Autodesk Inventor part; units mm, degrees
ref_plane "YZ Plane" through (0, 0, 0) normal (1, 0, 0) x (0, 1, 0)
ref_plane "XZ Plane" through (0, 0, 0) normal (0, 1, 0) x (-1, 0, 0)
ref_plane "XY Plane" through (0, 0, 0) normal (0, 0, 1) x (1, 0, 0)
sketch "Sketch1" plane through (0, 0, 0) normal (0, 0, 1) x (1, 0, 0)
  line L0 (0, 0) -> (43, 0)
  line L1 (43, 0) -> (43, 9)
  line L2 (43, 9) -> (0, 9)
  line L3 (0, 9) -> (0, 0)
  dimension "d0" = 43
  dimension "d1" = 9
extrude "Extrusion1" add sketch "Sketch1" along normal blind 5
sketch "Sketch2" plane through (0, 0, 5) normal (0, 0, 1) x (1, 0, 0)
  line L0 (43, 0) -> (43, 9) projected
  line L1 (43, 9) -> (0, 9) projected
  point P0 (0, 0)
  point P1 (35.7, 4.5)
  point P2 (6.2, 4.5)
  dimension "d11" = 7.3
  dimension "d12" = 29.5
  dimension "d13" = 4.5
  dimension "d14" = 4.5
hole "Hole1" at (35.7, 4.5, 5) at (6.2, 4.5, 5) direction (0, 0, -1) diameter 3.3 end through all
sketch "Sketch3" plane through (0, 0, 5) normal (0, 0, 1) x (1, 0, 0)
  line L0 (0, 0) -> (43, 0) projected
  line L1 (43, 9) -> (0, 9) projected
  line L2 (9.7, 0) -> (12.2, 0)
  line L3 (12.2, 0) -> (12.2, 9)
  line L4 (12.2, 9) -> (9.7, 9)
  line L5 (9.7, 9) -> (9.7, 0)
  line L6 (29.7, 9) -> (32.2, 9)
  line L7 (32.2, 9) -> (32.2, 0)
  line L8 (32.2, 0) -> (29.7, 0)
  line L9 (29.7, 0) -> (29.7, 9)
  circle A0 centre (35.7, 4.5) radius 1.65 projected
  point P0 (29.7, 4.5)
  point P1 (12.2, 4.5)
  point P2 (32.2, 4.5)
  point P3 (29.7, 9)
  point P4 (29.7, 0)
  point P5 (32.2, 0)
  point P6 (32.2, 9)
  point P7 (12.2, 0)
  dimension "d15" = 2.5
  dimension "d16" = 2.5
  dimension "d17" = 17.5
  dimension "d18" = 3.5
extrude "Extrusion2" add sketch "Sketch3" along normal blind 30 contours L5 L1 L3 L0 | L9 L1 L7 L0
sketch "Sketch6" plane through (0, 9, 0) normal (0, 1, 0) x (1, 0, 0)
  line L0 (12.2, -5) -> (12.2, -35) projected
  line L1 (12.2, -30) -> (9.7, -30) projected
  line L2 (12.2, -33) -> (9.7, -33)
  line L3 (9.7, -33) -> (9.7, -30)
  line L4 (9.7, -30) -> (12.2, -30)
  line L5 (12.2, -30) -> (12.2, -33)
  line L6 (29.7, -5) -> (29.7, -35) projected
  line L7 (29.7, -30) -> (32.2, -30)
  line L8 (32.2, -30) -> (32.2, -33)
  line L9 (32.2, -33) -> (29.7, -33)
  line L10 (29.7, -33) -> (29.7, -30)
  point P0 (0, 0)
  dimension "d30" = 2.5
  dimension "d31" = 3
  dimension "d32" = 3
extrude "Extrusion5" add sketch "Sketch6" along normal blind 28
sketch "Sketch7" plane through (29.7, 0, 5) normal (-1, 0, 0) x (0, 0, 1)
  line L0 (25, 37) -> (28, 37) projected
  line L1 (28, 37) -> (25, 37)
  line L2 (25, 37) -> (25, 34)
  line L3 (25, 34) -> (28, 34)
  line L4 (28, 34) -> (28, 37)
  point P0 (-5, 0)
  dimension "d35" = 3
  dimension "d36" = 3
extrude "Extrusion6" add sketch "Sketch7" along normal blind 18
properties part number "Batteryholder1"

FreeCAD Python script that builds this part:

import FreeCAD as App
import Part
import Sketcher
Q = App.Units.Quantity

doc = App.newDocument("Part")
body = doc.addObject("PartDesign::Body", "Body")

sketch1 = body.newObject("Sketcher::SketchObject", "Sketch")
sketch1.AttachmentSupport = (doc.getObject("XY_Plane"), [""])
sketch1.MapMode = "FlatFace"
sketch1.addGeometry([
    Part.LineSegment(App.Vector(0, 9, 0), App.Vector(0, 0, 0)),
    Part.LineSegment(App.Vector(0, 0, 0), App.Vector(43, 0, 0)),
    Part.LineSegment(App.Vector(43, 0, 0), App.Vector(43, 9, 0)),
    Part.LineSegment(App.Vector(43, 9, 0), App.Vector(0, 9, 0)),
], False)
sketch1.addConstraint([
    Sketcher.Constraint("Coincident", 0, 2, 1, 1),
    Sketcher.Constraint("Coincident", 1, 2, 2, 1),
    Sketcher.Constraint("Coincident", 2, 2, 3, 1),
    Sketcher.Constraint("Coincident", 3, 2, 0, 1),
    Sketcher.Constraint("Vertical", 0),
    Sketcher.Constraint("Horizontal", 1),
    Sketcher.Constraint("Vertical", 2),
    Sketcher.Constraint("Horizontal", 3),
    Sketcher.Constraint("Coincident", 0, 2, -1, 1),
    Sketcher.Constraint("DistanceX", 1, 1, 1, 2, Q("43 mm")),
    Sketcher.Constraint("DistanceY", 0, 2, 0, 1, Q("9 mm")),
])
pad1 = body.newObject("PartDesign::Pad", "Pad")
pad1.Profile = sketch1
pad1.Length = 5

sketch2 = body.newObject("Sketcher::SketchObject", "Sketch001")
sketch2.AttachmentSupport = (doc.getObject("XY_Plane"), [""])
sketch2.MapMode = "FlatFace"
sketch2.AttachmentOffset = App.Placement(App.Vector(0, 0, 5), App.Rotation())
sketch2.addGeometry([
    Part.Circle(App.Vector(35.7, 4.5, 0), App.Vector(0, 0, 1), 1.6),
    Part.Circle(App.Vector(6.2, 4.5, 0), App.Vector(0, 0, 1), 1.6),
], False)
sketch2.addConstraint([
    Sketcher.Constraint("Equal", 0, 1),
    Sketcher.Constraint("Horizontal", 0, 3, 1, 3),
    Sketcher.Constraint("Diameter", 0, Q("3.3 mm")),
    Sketcher.Constraint("DistanceX", -1, 1, 0, 3, Q("35.7 mm")),
    Sketcher.Constraint("DistanceY", -1, 1, 0, 3, Q("4.5 mm")),
    Sketcher.Constraint("DistanceX", -1, 1, 1, 3, Q("6.2 mm")),
])
doc.recompute()
hole = body.newObject("PartDesign::Hole", "Hole")
hole.Profile = sketch2
hole.ThreadType = "None"
hole.Diameter = 3.3
hole.DepthType = "ThroughAll"

sketch3 = body.newObject("Sketcher::SketchObject", "Sketch002")
sketch3.AttachmentSupport = (doc.getObject("XY_Plane"), [""])
sketch3.MapMode = "FlatFace"
sketch3.AttachmentOffset = App.Placement(App.Vector(0, 0, 5), App.Rotation())
sketch3.addGeometry([
    Part.LineSegment(App.Vector(9.7, 9, 0), App.Vector(9.7, 0, 0)),
    Part.LineSegment(App.Vector(9.7, 0, 0), App.Vector(12.2, 0, 0)),
    Part.LineSegment(App.Vector(12.2, 0, 0), App.Vector(12.2, 9, 0)),
    Part.LineSegment(App.Vector(12.2, 9, 0), App.Vector(9.7, 9, 0)),
    Part.LineSegment(App.Vector(29.7, 9, 0), App.Vector(29.7, 0, 0)),
    Part.LineSegment(App.Vector(29.7, 0, 0), App.Vector(32.2, 0, 0)),
    Part.LineSegment(App.Vector(32.2, 0, 0), App.Vector(32.2, 9, 0)),
    Part.LineSegment(App.Vector(32.2, 9, 0), App.Vector(29.7, 9, 0)),
], False)
sketch3.addConstraint([
    Sketcher.Constraint("Coincident", 0, 2, 1, 1),
    Sketcher.Constraint("Coincident", 1, 2, 2, 1),
    Sketcher.Constraint("Coincident", 2, 2, 3, 1),
    Sketcher.Constraint("Coincident", 3, 2, 0, 1),
    Sketcher.Constraint("Coincident", 4, 2, 5, 1),
    Sketcher.Constraint("Coincident", 5, 2, 6, 1),
    Sketcher.Constraint("Coincident", 6, 2, 7, 1),
    Sketcher.Constraint("Coincident", 7, 2, 4, 1),
    Sketcher.Constraint("Vertical", 0),
    Sketcher.Constraint("Horizontal", 1),
    Sketcher.Constraint("Vertical", 2),
    Sketcher.Constraint("Horizontal", 3),
    Sketcher.Constraint("Vertical", 4),
    Sketcher.Constraint("Horizontal", 5),
    Sketcher.Constraint("Vertical", 6),
    Sketcher.Constraint("Horizontal", 7),
    Sketcher.Constraint("PointOnObject", 0, 2, -1),
    Sketcher.Constraint("PointOnObject", 4, 2, -1),
    Sketcher.Constraint("Horizontal", 3, 2, 6, 2),
    Sketcher.Constraint("Equal", 3, 5),
    Sketcher.Constraint("DistanceX", 1, 1, 1, 2, Q("2.5 mm")),
    Sketcher.Constraint("DistanceX", 1, 2, 4, 2, Q("17.5 mm")),
    Sketcher.Constraint("DistanceY", 0, 2, 0, 1, Q("9 mm")),
    Sketcher.Constraint("DistanceX", -1, 1, 0, 2, Q("9.7 mm")),
])
pad2 = body.newObject("PartDesign::Pad", "Pad001")
pad2.Profile = sketch3
pad2.Length = 30

sketch4 = body.newObject("Sketcher::SketchObject", "Sketch003")
sketch4.AttachmentSupport = (doc.getObject("XZ_Plane"), [""])
sketch4.MapMode = "FlatFace"
sketch4.AttachmentOffset = App.Placement(App.Vector(0, 0, -9), App.Rotation())
sketch4.addGeometry([
    Part.LineSegment(App.Vector(12.2, 33, 0), App.Vector(12.2, 30, 0)),
    Part.LineSegment(App.Vector(12.2, 30, 0), App.Vector(9.7, 30, 0)),
    Part.LineSegment(App.Vector(9.7, 30, 0), App.Vector(9.7, 33, 0)),
    Part.LineSegment(App.Vector(9.7, 33, 0), App.Vector(12.2, 33, 0)),
    Part.LineSegment(App.Vector(32.2, 30, 0), App.Vector(29.7, 30, 0)),
    Part.LineSegment(App.Vector(29.7, 30, 0), App.Vector(29.7, 33, 0)),
    Part.LineSegment(App.Vector(29.7, 33, 0), App.Vector(32.2, 33, 0)),
    Part.LineSegment(App.Vector(32.2, 33, 0), App.Vector(32.2, 30, 0)),
], False)
sketch4.addConstraint([
    Sketcher.Constraint("Coincident", 0, 2, 1, 1),
    Sketcher.Constraint("Coincident", 1, 2, 2, 1),
    Sketcher.Constraint("Coincident", 2, 2, 3, 1),
    Sketcher.Constraint("Coincident", 3, 2, 0, 1),
    Sketcher.Constraint("Coincident", 4, 2, 5, 1),
    Sketcher.Constraint("Coincident", 5, 2, 6, 1),
    Sketcher.Constraint("Coincident", 6, 2, 7, 1),
    Sketcher.Constraint("Coincident", 7, 2, 4, 1),
    Sketcher.Constraint("Vertical", 0),
    Sketcher.Constraint("Horizontal", 1),
    Sketcher.Constraint("Vertical", 2),
    Sketcher.Constraint("Horizontal", 3),
    Sketcher.Constraint("Horizontal", 4),
    Sketcher.Constraint("Vertical", 5),
    Sketcher.Constraint("Horizontal", 6),
    Sketcher.Constraint("Vertical", 7),
    Sketcher.Constraint("Horizontal", 1, 2, 4, 2),
    Sketcher.Constraint("Horizontal", 3, 2, 5, 2),
    Sketcher.Constraint("Equal", 3, 4),
    Sketcher.Constraint("DistanceY", 0, 2, 0, 1, Q("3 mm")),
    Sketcher.Constraint("DistanceX", 1, 2, 1, 1, Q("2.5 mm")),
    Sketcher.Constraint("DistanceY", -1, 1, 0, 2, Q("30 mm")),
    Sketcher.Constraint("DistanceX", 1, 2, 4, 2, Q("20 mm")),
    Sketcher.Constraint("DistanceX", -1, 1, 0, 2, Q("12.2 mm")),
])
pad3 = body.newObject("PartDesign::Pad", "Pad002")
pad3.Profile = sketch4
pad3.Length = 28
pad3.Reversed = True

sketch5 = body.newObject("Sketcher::SketchObject", "Sketch004")
sketch5.AttachmentSupport = (doc.getObject("YZ_Plane"), [""])
sketch5.MapMode = "FlatFace"
sketch5.AttachmentOffset = App.Placement(App.Vector(0, 0, 29.7), App.Rotation())
sketch5.addGeometry([
    Part.LineSegment(App.Vector(37, 33, 0), App.Vector(37, 30, 0)),
    Part.LineSegment(App.Vector(37, 30, 0), App.Vector(34, 30, 0)),
    Part.LineSegment(App.Vector(34, 30, 0), App.Vector(34, 33, 0)),
    Part.LineSegment(App.Vector(34, 33, 0), App.Vector(37, 33, 0)),
], False)
sketch5.addConstraint([
    Sketcher.Constraint("Coincident", 0, 2, 1, 1),
    Sketcher.Constraint("Coincident", 1, 2, 2, 1),
    Sketcher.Constraint("Coincident", 2, 2, 3, 1),
    Sketcher.Constraint("Coincident", 3, 2, 0, 1),
    Sketcher.Constraint("Vertical", 0),
    Sketcher.Constraint("Horizontal", 1),
    Sketcher.Constraint("Vertical", 2),
    Sketcher.Constraint("Horizontal", 3),
    Sketcher.Constraint("Equal", 3, 0),
    Sketcher.Constraint("DistanceX", 1, 2, 1, 1, Q("3 mm")),
    Sketcher.Constraint("DistanceX", -1, 1, 0, 2, Q("37 mm")),
    Sketcher.Constraint("DistanceY", -1, 1, 0, 2, Q("30 mm")),
])
pad4 = body.newObject("PartDesign::Pad", "Pad003")
pad4.Profile = sketch5
pad4.Length = 18
pad4.Reversed = True

doc.recompute()
